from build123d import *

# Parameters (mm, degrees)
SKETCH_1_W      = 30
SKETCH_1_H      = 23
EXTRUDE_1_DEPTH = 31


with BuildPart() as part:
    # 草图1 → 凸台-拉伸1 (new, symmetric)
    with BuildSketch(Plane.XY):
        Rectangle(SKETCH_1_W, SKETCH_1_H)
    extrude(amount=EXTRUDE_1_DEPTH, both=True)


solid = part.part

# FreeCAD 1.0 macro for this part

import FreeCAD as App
import Part
import Sketcher
Q = App.Units.Quantity

doc = App.newDocument("Part")
body = doc.addObject("PartDesign::Body", "Body")

sketch1 = doc.addObject("Sketcher::SketchObject", "Sketch")
body.addObject(sketch1)
sketch1.AttachmentSupport = (doc.XY_Plane, [""])
sketch1.MapMode = "FlatFace"
sketch1.addGeometry([
    Part.LineSegment(App.Vector(-15, 12, 0), App.Vector(-15, -12, 0)),
    Part.LineSegment(App.Vector(-15, -12, 0), App.Vector(15, -12, 0)),
    Part.LineSegment(App.Vector(15, -12, 0), App.Vector(15, 12, 0)),
    Part.LineSegment(App.Vector(15, 12, 0), App.Vector(-15, 12, 0)),
], False)
sketch1.addConstraint([
    Sketcher.Constraint("Coincident", 0, 2, 1, 1),
    Sketcher.Constraint("Coincident", 1, 2, 2, 1),
    Sketcher.Constraint("Coincident", 2, 2, 3, 1),
    Sketcher.Constraint("Coincident", 3, 2, 0, 1),
    Sketcher.Constraint("Vertical", 0),
    Sketcher.Constraint("Horizontal", 1),
    Sketcher.Constraint("Vertical", 2),
    Sketcher.Constraint("Horizontal", 3),
    Sketcher.Constraint("Symmetric", 0, 2, 2, 2, -1, 1),
    Sketcher.Constraint("DistanceX", 1, 1, 1, 2, Q("30 mm")),
    Sketcher.Constraint("DistanceY", 0, 2, 0, 1, Q("23 mm")),
])
pad1 = doc.addObject("PartDesign::Pad", "Pad")
body.addObject(pad1)
pad1.Profile = sketch1
pad1.Length = 62
pad1.Midplane = True

doc.recompute()
